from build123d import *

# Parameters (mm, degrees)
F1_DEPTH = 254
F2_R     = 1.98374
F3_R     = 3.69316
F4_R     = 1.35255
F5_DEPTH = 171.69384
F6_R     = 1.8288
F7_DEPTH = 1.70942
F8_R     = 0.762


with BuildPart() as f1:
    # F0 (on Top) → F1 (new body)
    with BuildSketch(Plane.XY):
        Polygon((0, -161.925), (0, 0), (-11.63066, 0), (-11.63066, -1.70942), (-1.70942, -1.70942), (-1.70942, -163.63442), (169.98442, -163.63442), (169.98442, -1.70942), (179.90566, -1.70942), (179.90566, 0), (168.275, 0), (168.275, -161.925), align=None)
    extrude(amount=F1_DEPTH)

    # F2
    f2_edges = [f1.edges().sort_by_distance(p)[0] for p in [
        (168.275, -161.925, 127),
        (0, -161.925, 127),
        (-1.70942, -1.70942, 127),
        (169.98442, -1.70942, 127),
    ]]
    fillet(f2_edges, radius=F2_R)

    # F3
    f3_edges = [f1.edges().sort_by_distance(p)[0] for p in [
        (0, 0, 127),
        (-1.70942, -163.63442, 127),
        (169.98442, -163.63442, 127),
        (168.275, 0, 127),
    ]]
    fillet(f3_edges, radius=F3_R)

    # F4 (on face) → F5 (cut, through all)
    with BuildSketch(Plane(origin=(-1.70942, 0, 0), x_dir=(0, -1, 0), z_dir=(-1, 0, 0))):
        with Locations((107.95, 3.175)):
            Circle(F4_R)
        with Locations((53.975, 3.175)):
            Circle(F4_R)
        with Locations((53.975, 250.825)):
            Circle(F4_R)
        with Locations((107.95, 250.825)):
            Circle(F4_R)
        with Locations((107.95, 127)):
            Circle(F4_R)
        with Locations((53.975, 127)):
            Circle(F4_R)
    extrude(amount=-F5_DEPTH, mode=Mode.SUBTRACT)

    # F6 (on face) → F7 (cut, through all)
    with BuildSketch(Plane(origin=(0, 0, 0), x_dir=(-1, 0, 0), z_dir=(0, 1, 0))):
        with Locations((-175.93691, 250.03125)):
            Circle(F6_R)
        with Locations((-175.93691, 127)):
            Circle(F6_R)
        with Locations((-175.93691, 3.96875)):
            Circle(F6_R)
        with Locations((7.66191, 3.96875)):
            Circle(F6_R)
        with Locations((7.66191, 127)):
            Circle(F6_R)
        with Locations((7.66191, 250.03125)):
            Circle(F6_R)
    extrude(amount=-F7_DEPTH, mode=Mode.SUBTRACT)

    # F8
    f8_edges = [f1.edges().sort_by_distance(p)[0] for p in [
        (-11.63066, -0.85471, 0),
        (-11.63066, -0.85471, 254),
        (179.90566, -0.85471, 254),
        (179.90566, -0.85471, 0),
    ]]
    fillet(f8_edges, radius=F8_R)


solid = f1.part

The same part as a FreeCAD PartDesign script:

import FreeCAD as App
import Part
import Sketcher
from FreeCAD import Vector
Q = App.Units.Quantity


def edges_at(feature, points):
    """Names of the edges that pass closest to the given points."""
    edges = feature.Shape.Edges
    near = lambda p: min(range(len(edges)), key=lambda i: edges[i].distToShape(Part.Vertex(*p))[0])
    return sorted({f"Edge{near(p) + 1}" for p in points})


def add_polygon(sketch, points):
    """Adds a closed chain of lines whose ends are joined by coincident constraints."""
    first, n = sketch.GeometryCount, len(points)
    for a, b in zip(points, points[1:] + points[:1]):
        sketch.addGeometry(Part.LineSegment(App.Vector(*a, 0), App.Vector(*b, 0)), False)
    for i in range(n):
        sketch.addConstraint(Sketcher.Constraint("Coincident", first + i, 2, first + (i + 1) % n, 1))

doc = App.newDocument("Part")
params = doc.addObject("Spreadsheet::Sheet", "Params")
for row, (alias, value) in enumerate([
    ("sketch1_width", "6.625 in"),
    ("sketch1_height", "6.375 in"),
    ("pad1_length", "10 in"),
    ("fillet_radius", "0.0781 in"),
    ("fillet2_radius", "0.1454 in"),
    ("sketch3_diameter", "0.144 in"),
    ("fillet3_radius", "0.03 in"),
], start=1):
    params.set(f"A{row}", alias)
    params.set(f"B{row}", "=" + value)
    params.setAlias(f"B{row}", alias)

body = doc.addObject("PartDesign::Body", "Body")

sketch1 = body.newObject("Sketcher::SketchObject", "Sketch")
sketch1.AttachmentSupport = (doc.getObject("XY_Plane"), [""])
sketch1.MapMode = "FlatFace"
add_polygon(sketch1, [(0, -161.9), (0, 0), (-11.6, 0), (-11.6, -1.7), (-1.7, -1.7), (-1.7, -163.6), (170, -163.6), (170, -1.7), (179.9, -1.7), (179.9, 0), (168.3, 0), (168.3, -161.9)])
sketch1.addConstraint([
    Sketcher.Constraint("Vertical", 0),
    Sketcher.Constraint("Horizontal", 1),
    Sketcher.Constraint("Vertical", 2),
    Sketcher.Constraint("Horizontal", 3),
    Sketcher.Constraint("Vertical", 4),
    Sketcher.Constraint("Horizontal", 5),
    Sketcher.Constraint("Vertical", 6),
    Sketcher.Constraint("Horizontal", 7),
    Sketcher.Constraint("Vertical", 8),
    Sketcher.Constraint("Horizontal", 9),
    Sketcher.Constraint("Vertical", 10),
    Sketcher.Constraint("Horizontal", 11),
    Sketcher.Constraint("Coincident", 0, 2, -1, 1),
    Sketcher.Constraint("PointOnObject", 8, 2, -1),
    Sketcher.Constraint("Horizontal", 3, 2, 6, 2),
    Sketcher.Constraint("Equal", 3, 7),
    Sketcher.Constraint("Equal", 1, 9),
    Sketcher.Constraint("Equal", 0, 4),
    Sketcher.Constraint("DistanceX", 11, 2, 11, 1, Q("6.625 in")),
    Sketcher.Constraint("DistanceY", 0, 1, 0, 2, Q("6.375 in")),
    Sketcher.Constraint("DistanceX", 1, 2, 1, 1, Q("0.4579 in")),
    Sketcher.Constraint("DistanceX", 3, 1, 3, 2, Q("0.3906 in")),
    Sketcher.Constraint("DistanceY", 2, 2, 2, 1, Q("0.0673 in")),
])
sketch1.setExpression("Constraints[30]", "Params.sketch1_width")
sketch1.setExpression("Constraints[31]", "Params.sketch1_height")
pad1 = body.newObject("PartDesign::Pad", "Pad")
pad1.Profile = sketch1
pad1.setExpression("Length", "Params.pad1_length")
doc.recompute()

fillet = body.newObject("PartDesign::Fillet", "Fillet")
fillet.Base = (pad1, edges_at(pad1, [
    (168.275, -161.925, 127),
    (0, -161.925, 127),
    (-1.709, -1.709, 127),
    (169.984, -1.709, 127),
]))
fillet.setExpression("Radius", "Params.fillet_radius")
doc.recompute()

fillet2 = body.newObject("PartDesign::Fillet", "Fillet001")
fillet2.Base = (fillet, edges_at(fillet, [
    (0, 0, 127),
    (-1.709, -163.634, 127),
    (169.984, -163.634, 127),
    (168.275, 0, 127),
]))
fillet2.setExpression("Radius", "Params.fillet2_radius")

sketch2 = body.newObject("Sketcher::SketchObject", "Sketch001")
sketch2.AttachmentSupport = (doc.getObject("YZ_Plane"), [""])
sketch2.MapMode = "FlatFace"
sketch2.AttachmentOffset = App.Placement(Vector(0, 0, -0.0673 * 25.4), App.Rotation())
sketch2.addGeometry([
    Part.Circle(Vector(-108, 3.2, 0), Vector(0, 0, 1), 1.4),
    Part.Circle(Vector(-54, 3.2, 0), Vector(0, 0, 1), 1.4),
    Part.Circle(Vector(-54, 250.8, 0), Vector(0, 0, 1), 1.4),
    Part.Circle(Vector(-108, 250.8, 0), Vector(0, 0, 1), 1.4),
    Part.Circle(Vector(-108, 127, 0), Vector(0, 0, 1), 1.4),
    Part.Circle(Vector(-54, 127, 0), Vector(0, 0, 1), 1.4),
], False)
sketch2.addConstraint([
    Sketcher.Constraint("Equal", 0, 1),
    Sketcher.Constraint("Equal", 1, 2),
    Sketcher.Constraint("Equal", 2, 3),
    Sketcher.Constraint("Equal", 3, 4),
    Sketcher.Constraint("Equal", 4, 5),
    Sketcher.Constraint("Horizontal", 0, 3, 1, 3),
    Sketcher.Constraint("Horizontal", 2, 3, 3, 3),
    Sketcher.Constraint("Horizontal", 4, 3, 5, 3),
    Sketcher.Constraint("Vertical", 1, 3, 2, 3),
    Sketcher.Constraint("Vertical", 0, 3, 3, 3),
    Sketcher.Constraint("Vertical", 3, 3, 4, 3),
    Sketcher.Constraint("Vertical", 2, 3, 5, 3),
    Sketcher.Constraint("DistanceY", -1, 1, 4, 3, Q("5 in")),
    Sketcher.Constraint("Diameter", 0, Q("0.1065 in")),
    Sketcher.Constraint("DistanceX", 0, 3, -1, 1, Q("4.25 in")),
    Sketcher.Constraint("DistanceY", 1, 3, 2, 3, Q("9.75 in")),
    Sketcher.Constraint("DistanceY", -1, 1, 0, 3, Q("0.125 in")),
    Sketcher.Constraint("DistanceX", 1, 3, -1, 1, Q("2.125 in")),
])
pocket1 = body.newObject("PartDesign::Pocket", "Pocket")
pocket1.Profile = sketch2
pocket1.Type = "ThroughAll"
pocket1.Reversed = True

sketch3 = body.newObject("Sketcher::SketchObject", "Sketch002")
sketch3.AttachmentSupport = (doc.getObject("XZ_Plane"), [""])
sketch3.MapMode = "FlatFace"
sketch3.addGeometry([
    Part.Circle(Vector(175.9, 250, 0), Vector(0, 0, 1), 1.8),
    Part.Circle(Vector(175.9, 127, 0), Vector(0, 0, 1), 1.8),
    Part.Circle(Vector(175.9, 4, 0), Vector(0, 0, 1), 1.8),
    Part.Circle(Vector(-7.7, 4, 0), Vector(0, 0, 1), 1.8),
    Part.Circle(Vector(-7.7, 127, 0), Vector(0, 0, 1), 1.8),
    Part.Circle(Vector(-7.7, 250, 0), Vector(0, 0, 1), 1.8),
], False)
sketch3.addConstraint([
    Sketcher.Constraint("Equal", 0, 1),
    Sketcher.Constraint("Equal", 1, 2),
    Sketcher.Constraint("Equal", 2, 3),
    Sketcher.Constraint("Equal", 3, 4),
    Sketcher.Constraint("Equal", 4, 5),
    Sketcher.Constraint("Horizontal", 2, 3, 3, 3),
    Sketcher.Constraint("Horizontal", 1, 3, 4, 3),
    Sketcher.Constraint("Horizontal", 0, 3, 5, 3),
    Sketcher.Constraint("Vertical", 0, 3, 1, 3),
    Sketcher.Constraint("Vertical", 1, 3, 2, 3),
    Sketcher.Constraint("Vertical", 3, 3, 4, 3),
    Sketcher.Constraint("Vertical", 4, 3, 5, 3),
    Sketcher.Constraint("Diameter", 0, Q("0.144 in")),
    Sketcher.Constraint("DistanceY", -1, 1, 1, 3, Q("5 in")),
    Sketcher.Constraint("DistanceY", -1, 1, 0, 3, Q("9.84375 in")),
    Sketcher.Constraint("DistanceY", -1, 1, 2, 3, Q("0.15625 in")),
    Sketcher.Constraint("DistanceX", 3, 3, 2, 3, Q("7.2283 in")),
    Sketcher.Constraint("DistanceX", -1, 1, 0, 3, Q("175.93691 mm")),
])
sketch3.setExpression("Constraints[12]", "Params.sketch3_diameter")
pocket2 = body.newObject("PartDesign::Pocket", "Pocket001")
pocket2.Profile = sketch3
pocket2.Type = "ThroughAll"
pocket2.Reversed = True
doc.recompute()

fillet3 = body.newObject("PartDesign::Fillet", "Fillet002")
fillet3.Base = (pocket2, edges_at(pocket2, [
    (-11.631, -0.855, 0),
    (-11.631, -0.855, 254),
    (179.906, -0.855, 254),
    (179.906, -0.855, 0),
]))
fillet3.setExpression("Radius", "Params.fillet3_radius")

doc.recompute()
